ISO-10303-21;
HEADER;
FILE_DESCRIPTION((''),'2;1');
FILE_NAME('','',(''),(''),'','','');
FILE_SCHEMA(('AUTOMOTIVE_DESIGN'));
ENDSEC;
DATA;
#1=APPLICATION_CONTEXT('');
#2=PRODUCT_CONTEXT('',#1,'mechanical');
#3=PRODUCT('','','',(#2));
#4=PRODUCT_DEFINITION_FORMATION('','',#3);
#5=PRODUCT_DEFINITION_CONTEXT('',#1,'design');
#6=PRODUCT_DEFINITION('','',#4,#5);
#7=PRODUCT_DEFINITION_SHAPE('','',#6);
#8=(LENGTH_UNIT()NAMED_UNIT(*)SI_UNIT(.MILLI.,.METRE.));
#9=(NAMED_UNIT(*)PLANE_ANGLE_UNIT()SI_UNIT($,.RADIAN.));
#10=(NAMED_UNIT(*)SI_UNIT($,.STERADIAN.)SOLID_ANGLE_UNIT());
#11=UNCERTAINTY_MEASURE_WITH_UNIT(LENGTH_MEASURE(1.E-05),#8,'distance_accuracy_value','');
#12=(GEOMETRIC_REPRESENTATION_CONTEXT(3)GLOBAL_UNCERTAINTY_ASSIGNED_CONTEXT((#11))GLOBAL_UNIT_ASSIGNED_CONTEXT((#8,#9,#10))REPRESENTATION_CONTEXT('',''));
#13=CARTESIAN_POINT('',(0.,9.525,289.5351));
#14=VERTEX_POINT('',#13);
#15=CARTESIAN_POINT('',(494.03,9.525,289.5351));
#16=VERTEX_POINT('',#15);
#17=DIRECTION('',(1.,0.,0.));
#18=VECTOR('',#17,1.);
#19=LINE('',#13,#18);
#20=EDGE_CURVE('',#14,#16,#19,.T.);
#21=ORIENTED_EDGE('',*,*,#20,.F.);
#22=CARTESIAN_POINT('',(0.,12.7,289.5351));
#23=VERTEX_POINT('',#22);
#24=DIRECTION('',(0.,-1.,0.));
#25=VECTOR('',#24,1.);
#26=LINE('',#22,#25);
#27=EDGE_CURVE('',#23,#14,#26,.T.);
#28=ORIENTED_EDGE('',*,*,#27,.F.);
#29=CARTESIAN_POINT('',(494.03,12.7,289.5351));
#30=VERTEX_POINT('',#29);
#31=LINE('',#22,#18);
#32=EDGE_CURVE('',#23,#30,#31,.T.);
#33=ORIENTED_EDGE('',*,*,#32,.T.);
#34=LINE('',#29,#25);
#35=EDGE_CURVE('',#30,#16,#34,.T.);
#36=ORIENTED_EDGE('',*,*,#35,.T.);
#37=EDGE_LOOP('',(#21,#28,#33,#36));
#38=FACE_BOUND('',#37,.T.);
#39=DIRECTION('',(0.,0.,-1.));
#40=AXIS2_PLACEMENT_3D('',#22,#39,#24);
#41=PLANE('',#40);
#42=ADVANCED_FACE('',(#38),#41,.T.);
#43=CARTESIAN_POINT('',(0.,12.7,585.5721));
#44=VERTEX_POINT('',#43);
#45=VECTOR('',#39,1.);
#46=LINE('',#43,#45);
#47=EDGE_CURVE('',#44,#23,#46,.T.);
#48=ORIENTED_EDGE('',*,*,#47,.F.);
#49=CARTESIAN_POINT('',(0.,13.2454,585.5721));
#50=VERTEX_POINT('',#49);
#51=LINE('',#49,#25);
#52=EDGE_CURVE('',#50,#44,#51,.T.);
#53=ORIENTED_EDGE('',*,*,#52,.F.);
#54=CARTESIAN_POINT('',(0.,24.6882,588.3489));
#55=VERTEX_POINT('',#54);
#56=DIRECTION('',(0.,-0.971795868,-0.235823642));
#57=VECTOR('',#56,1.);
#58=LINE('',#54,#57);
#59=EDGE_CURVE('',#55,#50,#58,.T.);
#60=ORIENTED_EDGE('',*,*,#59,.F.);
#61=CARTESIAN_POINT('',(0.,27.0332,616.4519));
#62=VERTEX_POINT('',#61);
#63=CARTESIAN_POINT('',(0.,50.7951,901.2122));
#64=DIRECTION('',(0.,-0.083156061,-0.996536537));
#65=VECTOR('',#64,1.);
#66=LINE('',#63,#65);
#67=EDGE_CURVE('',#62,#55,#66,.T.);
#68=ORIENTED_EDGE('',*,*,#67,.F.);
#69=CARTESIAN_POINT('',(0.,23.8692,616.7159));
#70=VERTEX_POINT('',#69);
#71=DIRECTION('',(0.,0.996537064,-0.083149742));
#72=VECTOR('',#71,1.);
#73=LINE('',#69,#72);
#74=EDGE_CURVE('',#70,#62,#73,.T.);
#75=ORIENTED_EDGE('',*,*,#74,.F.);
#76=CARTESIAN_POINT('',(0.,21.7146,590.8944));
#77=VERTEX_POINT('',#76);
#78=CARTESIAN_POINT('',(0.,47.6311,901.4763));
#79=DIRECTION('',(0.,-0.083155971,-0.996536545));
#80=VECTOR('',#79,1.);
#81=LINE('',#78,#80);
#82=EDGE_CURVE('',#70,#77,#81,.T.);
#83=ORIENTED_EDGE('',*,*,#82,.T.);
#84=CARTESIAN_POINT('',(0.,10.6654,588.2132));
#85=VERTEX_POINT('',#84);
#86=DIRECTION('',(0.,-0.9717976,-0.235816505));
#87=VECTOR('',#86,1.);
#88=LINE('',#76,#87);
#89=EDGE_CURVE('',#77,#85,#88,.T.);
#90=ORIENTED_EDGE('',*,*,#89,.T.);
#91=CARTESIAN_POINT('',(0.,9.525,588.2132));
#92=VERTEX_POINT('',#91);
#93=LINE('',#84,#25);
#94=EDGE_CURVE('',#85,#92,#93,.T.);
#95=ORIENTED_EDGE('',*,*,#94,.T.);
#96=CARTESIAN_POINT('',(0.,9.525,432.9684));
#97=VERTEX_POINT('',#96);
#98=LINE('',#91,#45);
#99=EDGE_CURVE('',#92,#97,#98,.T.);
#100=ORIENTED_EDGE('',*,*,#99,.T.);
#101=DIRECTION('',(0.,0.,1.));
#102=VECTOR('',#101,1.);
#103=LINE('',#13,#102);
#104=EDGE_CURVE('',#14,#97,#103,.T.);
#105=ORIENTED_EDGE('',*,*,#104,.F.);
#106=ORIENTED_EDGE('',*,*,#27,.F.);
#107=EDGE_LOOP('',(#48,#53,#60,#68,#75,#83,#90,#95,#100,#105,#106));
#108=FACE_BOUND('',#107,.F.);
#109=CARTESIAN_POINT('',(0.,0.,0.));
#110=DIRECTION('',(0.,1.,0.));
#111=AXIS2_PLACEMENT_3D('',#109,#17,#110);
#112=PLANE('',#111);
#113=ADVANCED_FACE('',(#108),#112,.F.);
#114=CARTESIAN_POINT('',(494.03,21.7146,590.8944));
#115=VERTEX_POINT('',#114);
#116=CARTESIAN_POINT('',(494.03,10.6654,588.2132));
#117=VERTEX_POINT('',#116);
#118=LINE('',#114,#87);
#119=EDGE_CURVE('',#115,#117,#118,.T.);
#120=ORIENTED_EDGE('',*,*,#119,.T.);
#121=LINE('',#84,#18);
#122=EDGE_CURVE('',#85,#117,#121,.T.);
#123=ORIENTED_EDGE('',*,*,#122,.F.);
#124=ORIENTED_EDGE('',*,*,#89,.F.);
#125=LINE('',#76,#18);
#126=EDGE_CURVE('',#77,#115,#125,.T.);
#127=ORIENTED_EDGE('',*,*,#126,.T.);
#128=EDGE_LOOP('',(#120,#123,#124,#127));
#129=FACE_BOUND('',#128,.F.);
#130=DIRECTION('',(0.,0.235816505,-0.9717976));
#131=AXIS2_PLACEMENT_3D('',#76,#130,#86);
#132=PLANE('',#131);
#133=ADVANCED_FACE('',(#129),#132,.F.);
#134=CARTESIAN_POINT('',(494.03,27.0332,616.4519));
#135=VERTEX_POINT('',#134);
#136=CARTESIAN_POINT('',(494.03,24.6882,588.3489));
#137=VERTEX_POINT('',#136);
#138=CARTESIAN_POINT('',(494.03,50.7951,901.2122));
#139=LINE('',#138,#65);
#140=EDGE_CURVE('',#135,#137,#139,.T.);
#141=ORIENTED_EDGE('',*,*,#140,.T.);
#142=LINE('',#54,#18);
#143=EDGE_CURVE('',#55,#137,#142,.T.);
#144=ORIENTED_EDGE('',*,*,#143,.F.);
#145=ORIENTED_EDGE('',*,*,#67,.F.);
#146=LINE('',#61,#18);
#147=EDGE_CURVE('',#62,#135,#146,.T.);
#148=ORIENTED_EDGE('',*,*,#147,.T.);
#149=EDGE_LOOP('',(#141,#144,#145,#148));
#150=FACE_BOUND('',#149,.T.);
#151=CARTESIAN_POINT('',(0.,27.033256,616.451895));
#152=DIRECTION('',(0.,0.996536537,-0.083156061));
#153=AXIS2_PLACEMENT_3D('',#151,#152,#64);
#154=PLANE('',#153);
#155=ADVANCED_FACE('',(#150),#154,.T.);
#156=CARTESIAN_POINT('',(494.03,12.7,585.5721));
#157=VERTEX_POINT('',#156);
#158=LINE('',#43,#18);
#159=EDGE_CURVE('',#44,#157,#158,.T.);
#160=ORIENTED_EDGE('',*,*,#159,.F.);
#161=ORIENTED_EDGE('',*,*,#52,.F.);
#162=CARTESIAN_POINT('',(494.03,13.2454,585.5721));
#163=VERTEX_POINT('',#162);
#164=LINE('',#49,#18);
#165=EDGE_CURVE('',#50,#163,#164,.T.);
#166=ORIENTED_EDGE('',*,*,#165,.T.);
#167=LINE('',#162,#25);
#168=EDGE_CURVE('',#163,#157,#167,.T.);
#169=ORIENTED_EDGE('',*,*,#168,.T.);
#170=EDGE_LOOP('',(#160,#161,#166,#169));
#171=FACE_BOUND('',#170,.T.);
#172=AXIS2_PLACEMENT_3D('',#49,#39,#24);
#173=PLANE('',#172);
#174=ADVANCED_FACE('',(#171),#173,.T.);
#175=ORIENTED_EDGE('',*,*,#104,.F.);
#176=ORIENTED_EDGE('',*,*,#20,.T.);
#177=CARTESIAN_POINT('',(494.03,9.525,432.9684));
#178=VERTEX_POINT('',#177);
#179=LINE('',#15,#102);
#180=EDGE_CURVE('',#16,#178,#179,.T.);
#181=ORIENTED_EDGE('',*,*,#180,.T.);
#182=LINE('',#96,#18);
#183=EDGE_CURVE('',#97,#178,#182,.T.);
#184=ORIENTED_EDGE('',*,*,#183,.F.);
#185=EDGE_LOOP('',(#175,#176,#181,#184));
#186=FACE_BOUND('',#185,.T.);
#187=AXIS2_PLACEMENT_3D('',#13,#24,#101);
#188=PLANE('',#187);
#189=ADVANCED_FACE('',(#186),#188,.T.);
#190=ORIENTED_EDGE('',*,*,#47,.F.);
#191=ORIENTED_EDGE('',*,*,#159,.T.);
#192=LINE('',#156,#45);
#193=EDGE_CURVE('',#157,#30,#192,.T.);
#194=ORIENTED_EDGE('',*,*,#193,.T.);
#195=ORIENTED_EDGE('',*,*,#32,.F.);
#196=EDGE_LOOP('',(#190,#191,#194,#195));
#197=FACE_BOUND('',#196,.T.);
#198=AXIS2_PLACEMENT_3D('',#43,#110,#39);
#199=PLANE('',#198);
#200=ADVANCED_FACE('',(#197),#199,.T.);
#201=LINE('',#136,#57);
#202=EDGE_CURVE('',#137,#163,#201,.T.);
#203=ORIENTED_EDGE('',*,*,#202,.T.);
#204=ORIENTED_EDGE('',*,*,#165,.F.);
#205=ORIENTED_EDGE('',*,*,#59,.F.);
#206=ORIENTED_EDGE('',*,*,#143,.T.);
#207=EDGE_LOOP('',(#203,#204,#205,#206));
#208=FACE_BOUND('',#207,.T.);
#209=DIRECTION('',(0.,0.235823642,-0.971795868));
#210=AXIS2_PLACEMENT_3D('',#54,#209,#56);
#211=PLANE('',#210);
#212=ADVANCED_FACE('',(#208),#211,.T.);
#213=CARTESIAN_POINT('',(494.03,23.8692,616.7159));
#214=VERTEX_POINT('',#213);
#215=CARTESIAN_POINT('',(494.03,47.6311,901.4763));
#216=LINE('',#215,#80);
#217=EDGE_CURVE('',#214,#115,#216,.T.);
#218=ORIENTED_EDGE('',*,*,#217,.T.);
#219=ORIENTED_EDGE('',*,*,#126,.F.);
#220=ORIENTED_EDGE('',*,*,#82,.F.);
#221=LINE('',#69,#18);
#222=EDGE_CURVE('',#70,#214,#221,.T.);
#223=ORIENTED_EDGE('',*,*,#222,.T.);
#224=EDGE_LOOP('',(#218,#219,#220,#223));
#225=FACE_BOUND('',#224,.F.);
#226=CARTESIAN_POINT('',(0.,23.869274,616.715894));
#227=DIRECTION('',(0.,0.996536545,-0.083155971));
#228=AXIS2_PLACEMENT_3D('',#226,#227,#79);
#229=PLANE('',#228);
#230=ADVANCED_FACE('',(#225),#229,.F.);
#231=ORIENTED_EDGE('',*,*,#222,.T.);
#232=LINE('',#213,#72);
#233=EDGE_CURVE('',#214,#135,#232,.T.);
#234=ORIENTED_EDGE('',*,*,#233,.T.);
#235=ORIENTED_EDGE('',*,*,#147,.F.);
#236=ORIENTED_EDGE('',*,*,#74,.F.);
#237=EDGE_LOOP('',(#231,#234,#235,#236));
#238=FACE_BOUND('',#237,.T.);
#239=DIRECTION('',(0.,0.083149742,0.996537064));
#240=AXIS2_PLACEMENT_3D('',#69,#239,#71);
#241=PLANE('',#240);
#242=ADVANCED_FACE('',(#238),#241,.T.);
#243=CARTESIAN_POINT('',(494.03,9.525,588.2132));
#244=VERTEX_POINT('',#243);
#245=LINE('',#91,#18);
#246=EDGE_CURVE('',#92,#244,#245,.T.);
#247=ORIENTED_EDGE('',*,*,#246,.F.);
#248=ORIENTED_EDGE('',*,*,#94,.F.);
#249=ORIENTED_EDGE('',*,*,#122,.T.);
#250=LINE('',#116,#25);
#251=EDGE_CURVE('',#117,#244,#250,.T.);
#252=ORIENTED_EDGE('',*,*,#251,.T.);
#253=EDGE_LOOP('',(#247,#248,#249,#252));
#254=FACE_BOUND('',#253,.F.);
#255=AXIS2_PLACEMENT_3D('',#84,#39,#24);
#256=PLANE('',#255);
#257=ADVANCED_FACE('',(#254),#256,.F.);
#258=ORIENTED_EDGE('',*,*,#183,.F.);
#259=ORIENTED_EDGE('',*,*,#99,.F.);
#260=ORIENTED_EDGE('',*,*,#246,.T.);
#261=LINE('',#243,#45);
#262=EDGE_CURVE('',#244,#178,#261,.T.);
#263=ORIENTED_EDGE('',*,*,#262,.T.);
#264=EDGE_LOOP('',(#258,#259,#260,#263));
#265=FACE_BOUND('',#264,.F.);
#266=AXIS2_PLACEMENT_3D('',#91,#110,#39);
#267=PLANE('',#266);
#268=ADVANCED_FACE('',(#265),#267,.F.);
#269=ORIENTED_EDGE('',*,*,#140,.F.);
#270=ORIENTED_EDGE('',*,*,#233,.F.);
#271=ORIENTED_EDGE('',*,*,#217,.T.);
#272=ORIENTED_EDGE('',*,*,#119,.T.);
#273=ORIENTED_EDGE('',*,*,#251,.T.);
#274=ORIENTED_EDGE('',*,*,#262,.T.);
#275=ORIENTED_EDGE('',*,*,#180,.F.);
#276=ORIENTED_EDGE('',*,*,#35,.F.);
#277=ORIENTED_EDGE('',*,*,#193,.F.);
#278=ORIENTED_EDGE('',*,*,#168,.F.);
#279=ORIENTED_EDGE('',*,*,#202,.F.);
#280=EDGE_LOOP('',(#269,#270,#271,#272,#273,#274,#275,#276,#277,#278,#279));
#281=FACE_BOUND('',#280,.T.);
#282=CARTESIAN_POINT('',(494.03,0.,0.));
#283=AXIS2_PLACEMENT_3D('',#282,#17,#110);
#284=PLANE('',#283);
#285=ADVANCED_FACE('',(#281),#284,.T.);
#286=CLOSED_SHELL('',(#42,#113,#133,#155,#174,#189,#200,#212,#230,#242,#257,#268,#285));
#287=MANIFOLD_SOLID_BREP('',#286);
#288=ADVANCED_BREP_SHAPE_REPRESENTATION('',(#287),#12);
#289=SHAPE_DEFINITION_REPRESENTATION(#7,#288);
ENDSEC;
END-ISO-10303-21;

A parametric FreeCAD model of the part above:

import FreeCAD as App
import Part
import Sketcher

V = App.Vector
Q = App.Units.Quantity


def add_polygon(sketch, points):
    """Adds a closed chain of lines whose ends are joined by coincident constraints."""
    first, n = sketch.GeometryCount, len(points)
    for a, b in zip(points, points[1:] + points[:1]):
        sketch.addGeometry(Part.LineSegment(App.Vector(*a, 0), App.Vector(*b, 0)), False)
    for i in range(n):
        sketch.addConstraint(Sketcher.Constraint("Coincident", first + i, 2, first + (i + 1) % n, 1))

doc = App.newDocument("Part")
body = doc.addObject("PartDesign::Body", "Body")

sketch1 = body.newObject("Sketcher::SketchObject", "Sketch")
sketch1.AttachmentSupport = (doc.getObject("YZ_Plane"), [""])
sketch1.MapMode = "FlatFace"
add_polygon(sketch1, [(9.525, 588.2132), (9.525, 289.5351), (12.7, 289.5351), (12.7, 585.5721), (13.2454, 585.5721), (24.6882, 588.3489), (27.0332, 616.4519), (23.869274, 616.715894), (21.7146, 590.8944), (10.6654, 588.2132)])
sketch1.addConstraint(Sketcher.Constraint("Vertical", 0))
sketch1.addConstraint(Sketcher.Constraint("Horizontal", 1))
sketch1.addConstraint(Sketcher.Constraint("Vertical", 2))
sketch1.addConstraint(Sketcher.Constraint("Horizontal", 3))
sketch1.addConstraint(Sketcher.Constraint("Horizontal", 9))
sketch1.addConstraint(Sketcher.Constraint("Perpendicular", 5, 6))
sketch1.addConstraint(Sketcher.Constraint("Perpendicular", 6, 7))
sketch1.addConstraint(Sketcher.Constraint("Parallel", 4, 8))
sketch1.addConstraint(Sketcher.Constraint("DistanceX", 1, 1, 1, 2, Q("0.125 in")))
sketch1.addConstraint(Sketcher.Constraint("DistanceY", 2, 1, 2, 2, Q("11.655 in")))
sketch1.addConstraint(Sketcher.Constraint("Angle", 8, Q("-166.3602 deg")))
sketch1.addConstraint(Sketcher.Constraint("Distance", 6, Q("0.125 in")))
sketch1.addConstraint(Sketcher.Constraint("DistanceX", 9, 2, 9, 1, Q("0.0449 in")))
sketch1.addConstraint(Sketcher.Constraint("DistanceX", 3, 1, 3, 2, 0.5454))
sketch1.addConstraint(Sketcher.Constraint("DistanceX", -1, 1, 1, 2, Q("0.5 in")))
sketch1.addConstraint(Sketcher.Constraint("Distance", 4, 11.775))
sketch1.addConstraint(Sketcher.Constraint("Distance", 5, 28.2007))
sketch1.addConstraint(Sketcher.Constraint("Distance", 8, 11.3699))
sketch1.addConstraint(Sketcher.Constraint("Angle", 5, Q("85.23 deg")))
sketch1.addConstraint(Sketcher.Constraint("DistanceY", -1, 1, 8, 2, Q("23.158 in")))
pad1 = body.newObject("PartDesign::Pad", "Pad")
pad1.Profile = sketch1
pad1.Length = Q("19.45 in")

doc.recompute()
